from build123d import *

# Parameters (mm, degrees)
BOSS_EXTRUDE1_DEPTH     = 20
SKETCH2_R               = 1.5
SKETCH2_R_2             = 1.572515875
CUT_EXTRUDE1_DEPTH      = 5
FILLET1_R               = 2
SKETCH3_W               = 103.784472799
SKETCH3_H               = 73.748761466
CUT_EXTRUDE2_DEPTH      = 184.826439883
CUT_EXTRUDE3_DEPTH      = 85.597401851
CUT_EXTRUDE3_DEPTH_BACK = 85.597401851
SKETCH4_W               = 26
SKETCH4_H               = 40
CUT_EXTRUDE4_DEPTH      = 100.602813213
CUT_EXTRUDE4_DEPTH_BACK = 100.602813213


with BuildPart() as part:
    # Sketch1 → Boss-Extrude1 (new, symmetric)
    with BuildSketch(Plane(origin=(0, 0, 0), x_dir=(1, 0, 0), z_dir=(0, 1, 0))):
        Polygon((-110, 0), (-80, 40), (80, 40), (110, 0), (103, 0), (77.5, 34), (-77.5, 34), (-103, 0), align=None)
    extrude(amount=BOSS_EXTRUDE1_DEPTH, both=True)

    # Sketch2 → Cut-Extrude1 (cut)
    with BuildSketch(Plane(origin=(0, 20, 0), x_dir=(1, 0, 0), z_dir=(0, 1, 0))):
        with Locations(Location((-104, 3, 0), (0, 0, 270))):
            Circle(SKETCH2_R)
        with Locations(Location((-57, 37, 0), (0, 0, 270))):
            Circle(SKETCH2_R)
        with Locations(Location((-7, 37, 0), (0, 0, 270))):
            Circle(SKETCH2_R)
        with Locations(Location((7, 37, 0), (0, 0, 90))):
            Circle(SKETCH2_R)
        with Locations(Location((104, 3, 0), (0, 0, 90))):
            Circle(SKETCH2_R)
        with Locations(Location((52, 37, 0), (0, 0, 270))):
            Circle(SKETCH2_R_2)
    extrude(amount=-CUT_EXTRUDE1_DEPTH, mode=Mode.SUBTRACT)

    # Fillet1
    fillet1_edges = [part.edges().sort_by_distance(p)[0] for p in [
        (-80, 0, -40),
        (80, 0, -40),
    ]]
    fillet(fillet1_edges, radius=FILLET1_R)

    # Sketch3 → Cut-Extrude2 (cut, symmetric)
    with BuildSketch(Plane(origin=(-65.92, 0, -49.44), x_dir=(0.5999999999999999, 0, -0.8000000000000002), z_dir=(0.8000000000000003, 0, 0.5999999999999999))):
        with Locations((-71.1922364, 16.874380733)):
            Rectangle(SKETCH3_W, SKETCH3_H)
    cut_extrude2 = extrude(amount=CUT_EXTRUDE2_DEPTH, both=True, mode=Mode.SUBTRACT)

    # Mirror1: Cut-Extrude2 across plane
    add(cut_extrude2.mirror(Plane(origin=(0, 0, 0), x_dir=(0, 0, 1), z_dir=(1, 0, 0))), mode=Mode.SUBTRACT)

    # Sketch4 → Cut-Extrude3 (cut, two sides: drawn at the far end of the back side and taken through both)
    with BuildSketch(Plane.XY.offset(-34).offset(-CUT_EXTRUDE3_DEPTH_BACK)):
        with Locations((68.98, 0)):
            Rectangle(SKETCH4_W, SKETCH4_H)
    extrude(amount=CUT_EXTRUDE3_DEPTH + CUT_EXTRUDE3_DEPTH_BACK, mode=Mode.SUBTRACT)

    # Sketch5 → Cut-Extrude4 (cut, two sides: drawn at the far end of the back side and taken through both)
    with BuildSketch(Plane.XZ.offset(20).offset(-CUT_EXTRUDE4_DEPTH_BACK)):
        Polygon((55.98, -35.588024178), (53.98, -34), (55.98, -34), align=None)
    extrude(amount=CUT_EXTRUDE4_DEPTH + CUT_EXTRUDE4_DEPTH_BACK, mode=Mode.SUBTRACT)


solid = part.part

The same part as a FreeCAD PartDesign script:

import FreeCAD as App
import Part
import Sketcher
Q = App.Units.Quantity


def edges_at(feature, points):
    """Names of the edges that pass closest to the given points."""
    edges = feature.Shape.Edges
    near = lambda p: min(range(len(edges)), key=lambda i: edges[i].distToShape(Part.Vertex(*p))[0])
    return sorted({f"Edge{near(p) + 1}" for p in points})

doc = App.newDocument("Part")
body = doc.addObject("PartDesign::Body", "Body")

# Sketch on XZ plane
sketch1 = body.newObject("Sketcher::SketchObject", "Sketch")
sketch1.AttachmentSupport = (doc.getObject("XZ_Plane"), [""])
sketch1.MapMode = "FlatFace"
sketch1.addGeometry([
    Part.LineSegment(App.Vector(-80, -40, 0), App.Vector(-110, 0, 0)),  # 0
    Part.LineSegment(App.Vector(-110, 0, 0), App.Vector(-103, 0, 0)),  # 1
    Part.LineSegment(App.Vector(-103, 0, 0), App.Vector(-78, -34, 0)),  # 2
    Part.LineSegment(App.Vector(-78, -34, 0), App.Vector(78, -34, 0)),  # 3
    Part.LineSegment(App.Vector(78, -34, 0), App.Vector(103, 0, 0)),  # 4
    Part.LineSegment(App.Vector(103, 0, 0), App.Vector(110, 0, 0)),  # 5
    Part.LineSegment(App.Vector(110, 0, 0), App.Vector(80, -40, 0)),  # 6
    Part.LineSegment(App.Vector(80, -40, 0), App.Vector(-80, -40, 0)),  # 7
], False)
sketch1.addConstraint([
    Sketcher.Constraint("Coincident", 0, 2, 1, 1),
    Sketcher.Constraint("Coincident", 1, 2, 2, 1),
    Sketcher.Constraint("Coincident", 2, 2, 3, 1),
    Sketcher.Constraint("Coincident", 3, 2, 4, 1),
    Sketcher.Constraint("Coincident", 4, 2, 5, 1),
    Sketcher.Constraint("Coincident", 5, 2, 6, 1),
    Sketcher.Constraint("Coincident", 6, 2, 7, 1),
    Sketcher.Constraint("Coincident", 7, 2, 0, 1),
    Sketcher.Constraint("Horizontal", 1),
    Sketcher.Constraint("Horizontal", 3),
    Sketcher.Constraint("Horizontal", 5),
    Sketcher.Constraint("Horizontal", 7),
    Sketcher.Constraint("Symmetric", 1, 2, 4, 2, -1, 1),
    Sketcher.Constraint("Symmetric", 0, 2, 5, 2, -2),
    Sketcher.Constraint("Parallel", 0, 2),
    Sketcher.Constraint("Parallel", 4, 6),
    Sketcher.Constraint("Equal", 2, 4),
    Sketcher.Constraint("DistanceX", 1, 1, 1, 2, Q("7 mm")),
    Sketcher.Constraint("DistanceX", 3, 1, 3, 2, Q("155 mm")),
    Sketcher.Constraint("DistanceX", 7, 2, 7, 1, Q("160 mm")),
    Sketcher.Constraint("Distance", 0, Q("50 mm")),
    Sketcher.Constraint("DistanceX", 0, 2, -1, 1, Q("110 mm")),
])
pad1 = body.newObject("PartDesign::Pad", "Pad")
pad1.Profile = sketch1
pad1.Length = 40
pad1.Midplane = True

# Sketch on XZ plane
sketch2 = body.newObject("Sketcher::SketchObject", "Sketch001")
sketch2.AttachmentSupport = (doc.getObject("XZ_Plane"), [""])
sketch2.MapMode = "FlatFace"
sketch2.AttachmentOffset = App.Placement(App.Vector(0, 0, -20), App.Rotation())
sketch2.addGeometry([
    Part.Circle(App.Vector(-104, -3, 0), App.Vector(0, 0, 1), 1.5),  # 0
    Part.Circle(App.Vector(-57, -37, 0), App.Vector(0, 0, 1), 1.5),  # 1
    Part.Circle(App.Vector(-7, -37, 0), App.Vector(0, 0, 1), 1.5),  # 2
    Part.Circle(App.Vector(7, -37, 0), App.Vector(0, 0, 1), 1.5),  # 3
    Part.Circle(App.Vector(104, -3, 0), App.Vector(0, 0, 1), 1.5),  # 4
    Part.Circle(App.Vector(52, -37, 0), App.Vector(0, 0, 1), 1.6),  # 5
], False)
sketch2.addConstraint([
    Sketcher.Constraint("Equal", 0, 1),
    Sketcher.Constraint("Equal", 1, 2),
    Sketcher.Constraint("Equal", 2, 3),
    Sketcher.Constraint("Equal", 3, 4),
    Sketcher.Constraint("Symmetric", 2, 3, 3, 3, -2),
    Sketcher.Constraint("Symmetric", 0, 3, 4, 3, -2),
    Sketcher.Constraint("Horizontal", 1, 3, 2, 3),
    Sketcher.Constraint("Horizontal", 3, 3, 5, 3),
    Sketcher.Constraint("Diameter", 0, Q("3 mm")),
    Sketcher.Constraint("DistanceX", 0, 3, -1, 1, Q("104 mm")),
    Sketcher.Constraint("DistanceY", 0, 3, -1, 1, Q("3 mm")),
    Sketcher.Constraint("DistanceX", 1, 3, -1, 1, Q("57 mm")),
    Sketcher.Constraint("DistanceY", 1, 3, -1, 1, Q("37 mm")),
    Sketcher.Constraint("DistanceX", 2, 3, -1, 1, Q("7 mm")),
    Sketcher.Constraint("DistanceX", -1, 1, 5, 3, Q("52 mm")),
    Sketcher.Constraint("Diameter", 5, Q("3.145032 mm")),
])
pocket1 = body.newObject("PartDesign::Pocket", "Pocket")
pocket1.Profile = sketch2
pocket1.Length = 5
pocket1.Reversed = True
doc.recompute()

fillet = body.newObject("PartDesign::Fillet", "Fillet")
fillet.Base = (pocket1, edges_at(pocket1, [(-80, 0, -40), (80, 0, -40)]))
fillet.Radius = 2

# Sketch on an angled plane
sketch3 = body.newObject("Sketcher::SketchObject", "Sketch002")
sketch3.Placement = App.Placement(App.Vector(-65.92, 0, -49.44), App.Rotation(App.Vector(0.6, 0, -0.8), App.Vector(0, 1, 0), App.Vector(0.8, 0, 0.6), "ZXY"))
sketch3.addGeometry([
    Part.LineSegment(App.Vector(-123, 54, 0), App.Vector(-123, -20, 0)),
    Part.LineSegment(App.Vector(-123, -20, 0), App.Vector(-19, -20, 0)),
    Part.LineSegment(App.Vector(-19, -20, 0), App.Vector(-19, 54, 0)),
    Part.LineSegment(App.Vector(-19, 54, 0), App.Vector(-123, 54, 0)),
], False)
sketch3.addConstraint([
    Sketcher.Constraint("Coincident", 0, 2, 1, 1),
    Sketcher.Constraint("Coincident", 1, 2, 2, 1),
    Sketcher.Constraint("Coincident", 2, 2, 3, 1),
    Sketcher.Constraint("Coincident", 3, 2, 0, 1),
    Sketcher.Constraint("Vertical", 0),
    Sketcher.Constraint("Horizontal", 1),
    Sketcher.Constraint("Vertical", 2),
    Sketcher.Constraint("Horizontal", 3),
    Sketcher.Constraint("DistanceY", 0, 2, -1, 1, Q("20 mm")),
    Sketcher.Constraint("DistanceX", 1, 2, -1, 1, Q("19.3 mm")),
    Sketcher.Constraint("DistanceY", 0, 2, 0, 1, Q("73.748761 mm")),
    Sketcher.Constraint("DistanceX", 1, 1, 1, 2, Q("103.784473 mm")),
])
pocket2 = body.newObject("PartDesign::Pocket", "Pocket001")
pocket2.Profile = sketch3
pocket2.Length = 369.65288
pocket2.Midplane = True
doc.recompute()

mirrored = body.newObject("PartDesign::Mirrored", "Mirrored")
mirrored.Originals = [pocket2]
mirrored.MirrorPlane = (doc.getObject("YZ_Plane"), [""])
body.Tip = mirrored

# Sketch on XY plane
sketch4 = body.newObject("Sketcher::SketchObject", "Sketch003")
sketch4.AttachmentSupport = (doc.getObject("XY_Plane"), [""])
sketch4.MapMode = "FlatFace"
sketch4.AttachmentOffset = App.Placement(App.Vector(0, 0, -34), App.Rotation())
sketch4.addGeometry([
    Part.LineSegment(App.Vector(56, 20, 0), App.Vector(56, -20, 0)),
    Part.LineSegment(App.Vector(56, -20, 0), App.Vector(82, -20, 0)),
    Part.LineSegment(App.Vector(82, -20, 0), App.Vector(82, 20, 0)),
    Part.LineSegment(App.Vector(82, 20, 0), App.Vector(56, 20, 0)),
], False)
sketch4.addConstraint([
    Sketcher.Constraint("Coincident", 0, 2, 1, 1),
    Sketcher.Constraint("Coincident", 1, 2, 2, 1),
    Sketcher.Constraint("Coincident", 2, 2, 3, 1),
    Sketcher.Constraint("Coincident", 3, 2, 0, 1),
    Sketcher.Constraint("Vertical", 0),
    Sketcher.Constraint("Horizontal", 1),
    Sketcher.Constraint("Vertical", 2),
    Sketcher.Constraint("Horizontal", 3),
    Sketcher.Constraint("DistanceX", 1, 1, 1, 2, Q("26 mm")),
    Sketcher.Constraint("DistanceY", 0, 2, 0, 1, Q("40 mm")),
    Sketcher.Constraint("DistanceY", 0, 2, -1, 1, Q("20 mm")),
    Sketcher.Constraint("DistanceX", -1, 1, 0, 2, Q("55.98 mm")),
])
pocket3 = body.newObject("PartDesign::Pocket", "Pocket002")
pocket3.Profile = sketch4
pocket3.Type = "ThroughAll"
pocket3.Midplane = True

# Sketch on XZ plane
sketch5 = body.newObject("Sketcher::SketchObject", "Sketch004")
sketch5.AttachmentSupport = (doc.getObject("XZ_Plane"), [""])
sketch5.MapMode = "FlatFace"
sketch5.AttachmentOffset = App.Placement(App.Vector(0, 0, 20), App.Rotation())
sketch5.addGeometry([
    Part.LineSegment(App.Vector(54, -34, 0), App.Vector(56, -35.6, 0)),
    Part.LineSegment(App.Vector(56, -35.6, 0), App.Vector(56, -34, 0)),
    Part.LineSegment(App.Vector(56, -34, 0), App.Vector(54, -34, 0)),
], False)
sketch5.addConstraint([
    Sketcher.Constraint("Coincident", 0, 2, 1, 1),
    Sketcher.Constraint("Coincident", 1, 2, 2, 1),
    Sketcher.Constraint("Coincident", 2, 2, 0, 1),
    Sketcher.Constraint("Vertical", 1),
    Sketcher.Constraint("Horizontal", 2),
    Sketcher.Constraint("DistanceX", 2, 2, 2, 1, Q("2 mm")),
    Sketcher.Constraint("DistanceY", 1, 2, -1, 1, Q("34 mm")),
    Sketcher.Constraint("Angle", 0, Q("-38.45 deg")),
    Sketcher.Constraint("DistanceX", -1, 1, 0, 2, Q("55.98 mm")),
])
pocket4 = body.newObject("PartDesign::Pocket", "Pocket003")
pocket4.Profile = sketch5
pocket4.Type = "ThroughAll"
pocket4.Midplane = True

doc.recompute()
